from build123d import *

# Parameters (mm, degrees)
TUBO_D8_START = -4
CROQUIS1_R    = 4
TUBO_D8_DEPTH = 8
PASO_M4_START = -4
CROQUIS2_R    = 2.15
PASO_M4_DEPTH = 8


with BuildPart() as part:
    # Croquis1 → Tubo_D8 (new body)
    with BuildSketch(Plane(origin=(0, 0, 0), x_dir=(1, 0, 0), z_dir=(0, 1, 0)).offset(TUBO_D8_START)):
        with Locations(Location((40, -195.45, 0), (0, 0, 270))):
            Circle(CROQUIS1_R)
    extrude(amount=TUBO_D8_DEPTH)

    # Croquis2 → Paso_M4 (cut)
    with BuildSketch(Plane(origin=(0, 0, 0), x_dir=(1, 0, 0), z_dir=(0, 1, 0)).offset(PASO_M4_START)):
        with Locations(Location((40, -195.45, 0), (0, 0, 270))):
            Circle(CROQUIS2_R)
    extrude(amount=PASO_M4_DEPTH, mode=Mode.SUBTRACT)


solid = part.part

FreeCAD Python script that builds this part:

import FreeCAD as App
import Part
import Sketcher
Q = App.Units.Quantity

doc = App.newDocument("Part")
body = doc.addObject("PartDesign::Body", "Body")

# Sketch on XZ plane
sketch1 = body.newObject("Sketcher::SketchObject", "Sketch")
sketch1.AttachmentSupport = (doc.getObject("XZ_Plane"), [""])
sketch1.MapMode = "FlatFace"
sketch1.AttachmentOffset = App.Placement(App.Vector(0, 0, 4), App.Rotation())
sketch1.addGeometry(Part.Circle(App.Vector(40, 195.45, 0), App.Vector(0, 0, 1), 4), False)
sketch1.addConstraint([
    Sketcher.Constraint("Diameter", 0, Q("8 mm")),
    Sketcher.Constraint("DistanceX", -1, 1, 0, 3, Q("40 mm")),
    Sketcher.Constraint("DistanceY", -1, 1, 0, 3, Q("195.45 mm")),
])
pad1 = body.newObject("PartDesign::Pad", "Pad")
pad1.Profile = sketch1
pad1.Length = 8
pad1.Reversed = True

# Sketch on XZ plane
sketch2 = body.newObject("Sketcher::SketchObject", "Sketch001")
sketch2.AttachmentSupport = (doc.getObject("XZ_Plane"), [""])
sketch2.MapMode = "FlatFace"
sketch2.AttachmentOffset = App.Placement(App.Vector(0, 0, 4), App.Rotation())
sketch2.addGeometry(Part.Circle(App.Vector(40, 195.45, 0), App.Vector(0, 0, 1), 2.15), False)
sketch2.addConstraint([
    Sketcher.Constraint("Diameter", 0, Q("4.3 mm")),
    Sketcher.Constraint("DistanceX", -1, 1, 0, 3, Q("40 mm")),
    Sketcher.Constraint("DistanceY", -1, 1, 0, 3, Q("195.45 mm")),
])
pocket1 = body.newObject("PartDesign::Pocket", "Pocket")
pocket1.Profile = sketch2
pocket1.Length = 8

doc.recompute()
